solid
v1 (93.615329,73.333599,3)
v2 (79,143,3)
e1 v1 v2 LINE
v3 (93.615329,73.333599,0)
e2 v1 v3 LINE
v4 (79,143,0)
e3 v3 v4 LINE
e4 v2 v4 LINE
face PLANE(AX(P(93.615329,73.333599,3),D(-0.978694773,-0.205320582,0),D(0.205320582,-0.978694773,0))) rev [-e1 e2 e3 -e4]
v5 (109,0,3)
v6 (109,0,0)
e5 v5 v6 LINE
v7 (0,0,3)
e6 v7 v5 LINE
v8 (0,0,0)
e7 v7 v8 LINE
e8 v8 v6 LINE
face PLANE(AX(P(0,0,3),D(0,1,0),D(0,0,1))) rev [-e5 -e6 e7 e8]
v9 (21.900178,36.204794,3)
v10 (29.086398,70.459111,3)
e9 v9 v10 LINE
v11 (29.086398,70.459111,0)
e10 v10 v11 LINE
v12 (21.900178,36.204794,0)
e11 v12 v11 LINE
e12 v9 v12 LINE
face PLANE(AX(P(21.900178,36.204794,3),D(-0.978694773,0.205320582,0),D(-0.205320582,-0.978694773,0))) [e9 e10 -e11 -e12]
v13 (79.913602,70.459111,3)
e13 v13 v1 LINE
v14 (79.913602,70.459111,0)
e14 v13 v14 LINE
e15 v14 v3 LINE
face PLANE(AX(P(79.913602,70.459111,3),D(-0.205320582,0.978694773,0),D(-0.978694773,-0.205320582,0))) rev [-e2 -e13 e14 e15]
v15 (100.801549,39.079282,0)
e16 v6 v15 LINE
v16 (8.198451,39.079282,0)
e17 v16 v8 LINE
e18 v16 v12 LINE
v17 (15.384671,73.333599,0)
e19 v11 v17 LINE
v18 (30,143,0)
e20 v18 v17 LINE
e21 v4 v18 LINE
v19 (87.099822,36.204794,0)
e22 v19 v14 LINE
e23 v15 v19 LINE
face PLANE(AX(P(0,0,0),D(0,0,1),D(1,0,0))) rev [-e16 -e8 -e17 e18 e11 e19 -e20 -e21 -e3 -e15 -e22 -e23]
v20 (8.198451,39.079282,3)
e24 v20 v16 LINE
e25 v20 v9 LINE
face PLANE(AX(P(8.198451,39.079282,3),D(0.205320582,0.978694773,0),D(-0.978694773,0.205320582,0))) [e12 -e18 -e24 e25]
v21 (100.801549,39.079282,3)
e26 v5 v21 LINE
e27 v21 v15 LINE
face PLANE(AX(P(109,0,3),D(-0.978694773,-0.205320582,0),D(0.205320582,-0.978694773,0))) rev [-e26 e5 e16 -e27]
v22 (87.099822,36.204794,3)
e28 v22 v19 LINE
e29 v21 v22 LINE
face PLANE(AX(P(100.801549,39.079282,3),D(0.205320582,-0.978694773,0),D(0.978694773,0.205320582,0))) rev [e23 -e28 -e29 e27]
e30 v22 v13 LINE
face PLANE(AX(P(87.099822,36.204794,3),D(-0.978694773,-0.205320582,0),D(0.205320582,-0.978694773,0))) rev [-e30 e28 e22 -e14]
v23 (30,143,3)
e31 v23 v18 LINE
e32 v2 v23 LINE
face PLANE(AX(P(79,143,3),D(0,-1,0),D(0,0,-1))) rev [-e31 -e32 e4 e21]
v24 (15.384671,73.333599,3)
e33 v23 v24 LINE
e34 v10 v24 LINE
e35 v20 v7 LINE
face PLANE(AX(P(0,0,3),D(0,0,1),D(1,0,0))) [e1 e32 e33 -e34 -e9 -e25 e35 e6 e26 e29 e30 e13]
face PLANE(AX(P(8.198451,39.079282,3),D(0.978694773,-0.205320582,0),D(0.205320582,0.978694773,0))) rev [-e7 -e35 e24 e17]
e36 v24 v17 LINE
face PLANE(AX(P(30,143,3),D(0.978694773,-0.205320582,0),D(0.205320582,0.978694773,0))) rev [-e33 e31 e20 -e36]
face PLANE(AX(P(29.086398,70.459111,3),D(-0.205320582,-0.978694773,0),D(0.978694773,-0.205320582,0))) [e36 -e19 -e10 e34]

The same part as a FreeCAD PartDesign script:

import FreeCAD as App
import Part
import Sketcher
from FreeCAD import Vector

doc = App.newDocument("Part")
body = doc.addObject("PartDesign::Body", "Body")

sketch1 = doc.addObject("Sketcher::SketchObject", "Sketch")
body.addObject(sketch1)
sketch1.AttachmentSupport = (doc.XY_Plane, [""])
sketch1.MapMode = "FlatFace"
sketch1.addGeometry([
    Part.LineSegment(Vector(0, 0, 0), Vector(109, 0, 0)),
    Part.LineSegment(Vector(109, 0, 0), Vector(101, 39, 0)),
    Part.LineSegment(Vector(101, 39, 0), Vector(87, 36, 0)),
    Part.LineSegment(Vector(87, 36, 0), Vector(80, 70, 0)),
    Part.LineSegment(Vector(80, 70, 0), Vector(94, 73, 0)),
    Part.LineSegment(Vector(94, 73, 0), Vector(79, 143, 0)),
    Part.LineSegment(Vector(79, 143, 0), Vector(30, 143, 0)),
    Part.LineSegment(Vector(30, 143, 0), Vector(15, 73, 0)),
    Part.LineSegment(Vector(15, 73, 0), Vector(29, 70, 0)),
    Part.LineSegment(Vector(29, 70, 0), Vector(22, 36, 0)),
    Part.LineSegment(Vector(22, 36, 0), Vector(8, 39, 0)),
    Part.LineSegment(Vector(8, 39, 0), Vector(0, 0, 0)),
], False)
sketch1.addConstraint([
    Sketcher.Constraint("Coincident", 0, 2, 1, 1),
    Sketcher.Constraint("Coincident", 1, 2, 2, 1),
    Sketcher.Constraint("Coincident", 2, 2, 3, 1),
    Sketcher.Constraint("Coincident", 3, 2, 4, 1),
    Sketcher.Constraint("Coincident", 4, 2, 5, 1),
    Sketcher.Constraint("Coincident", 5, 2, 6, 1),
    Sketcher.Constraint("Coincident", 6, 2, 7, 1),
    Sketcher.Constraint("Coincident", 7, 2, 8, 1),
    Sketcher.Constraint("Coincident", 8, 2, 9, 1),
    Sketcher.Constraint("Coincident", 9, 2, 10, 1),
    Sketcher.Constraint("Coincident", 10, 2, 11, 1),
    Sketcher.Constraint("Coincident", 11, 2, 0, 1),
    Sketcher.Constraint("Horizontal", 0),
    Sketcher.Constraint("Horizontal", 6),
    Sketcher.Constraint("Coincident", 11, 2, -1, 1),
    Sketcher.Constraint("Perpendicular", 1, 2),
    Sketcher.Constraint("Perpendicular", 2, 3),
    Sketcher.Constraint("Perpendicular", 3, 4),
    Sketcher.Constraint("Perpendicular", 4, 5),
    Sketcher.Constraint("Perpendicular", 7, 8),
    Sketcher.Constraint("Perpendicular", 8, 9),
    Sketcher.Constraint("Perpendicular", 9, 10),
    Sketcher.Constraint("Perpendicular", 10, 11),
    Sketcher.Constraint("Horizontal", 4, 2, 7, 2),
    Sketcher.Constraint("Horizontal", 3, 2, 8, 2),
    Sketcher.Constraint("Horizontal", 2, 2, 9, 2),
    Sketcher.Constraint("Horizontal", 1, 2, 10, 2),
    Sketcher.Constraint("Equal", 2, 4),
    Sketcher.Constraint("Equal", 5, 7),
    Sketcher.Constraint("DistanceX", 0, 1, 0, 2, 109.0),
    Sketcher.Constraint("DistanceX", 6, 2, 6, 1, 49.0),
    Sketcher.Constraint("Distance", 2, 14.0),
    Sketcher.Constraint("Distance", 3, 35.0),
    Sketcher.Constraint("DistanceY", -1, 1, 5, 2, 143.0),
    Sketcher.Constraint("Distance", 1, 39.93),
])
pad1 = doc.addObject("PartDesign::Pad", "Pad")
body.addObject(pad1)
pad1.Profile = sketch1
pad1.Length = 3

doc.recompute()
